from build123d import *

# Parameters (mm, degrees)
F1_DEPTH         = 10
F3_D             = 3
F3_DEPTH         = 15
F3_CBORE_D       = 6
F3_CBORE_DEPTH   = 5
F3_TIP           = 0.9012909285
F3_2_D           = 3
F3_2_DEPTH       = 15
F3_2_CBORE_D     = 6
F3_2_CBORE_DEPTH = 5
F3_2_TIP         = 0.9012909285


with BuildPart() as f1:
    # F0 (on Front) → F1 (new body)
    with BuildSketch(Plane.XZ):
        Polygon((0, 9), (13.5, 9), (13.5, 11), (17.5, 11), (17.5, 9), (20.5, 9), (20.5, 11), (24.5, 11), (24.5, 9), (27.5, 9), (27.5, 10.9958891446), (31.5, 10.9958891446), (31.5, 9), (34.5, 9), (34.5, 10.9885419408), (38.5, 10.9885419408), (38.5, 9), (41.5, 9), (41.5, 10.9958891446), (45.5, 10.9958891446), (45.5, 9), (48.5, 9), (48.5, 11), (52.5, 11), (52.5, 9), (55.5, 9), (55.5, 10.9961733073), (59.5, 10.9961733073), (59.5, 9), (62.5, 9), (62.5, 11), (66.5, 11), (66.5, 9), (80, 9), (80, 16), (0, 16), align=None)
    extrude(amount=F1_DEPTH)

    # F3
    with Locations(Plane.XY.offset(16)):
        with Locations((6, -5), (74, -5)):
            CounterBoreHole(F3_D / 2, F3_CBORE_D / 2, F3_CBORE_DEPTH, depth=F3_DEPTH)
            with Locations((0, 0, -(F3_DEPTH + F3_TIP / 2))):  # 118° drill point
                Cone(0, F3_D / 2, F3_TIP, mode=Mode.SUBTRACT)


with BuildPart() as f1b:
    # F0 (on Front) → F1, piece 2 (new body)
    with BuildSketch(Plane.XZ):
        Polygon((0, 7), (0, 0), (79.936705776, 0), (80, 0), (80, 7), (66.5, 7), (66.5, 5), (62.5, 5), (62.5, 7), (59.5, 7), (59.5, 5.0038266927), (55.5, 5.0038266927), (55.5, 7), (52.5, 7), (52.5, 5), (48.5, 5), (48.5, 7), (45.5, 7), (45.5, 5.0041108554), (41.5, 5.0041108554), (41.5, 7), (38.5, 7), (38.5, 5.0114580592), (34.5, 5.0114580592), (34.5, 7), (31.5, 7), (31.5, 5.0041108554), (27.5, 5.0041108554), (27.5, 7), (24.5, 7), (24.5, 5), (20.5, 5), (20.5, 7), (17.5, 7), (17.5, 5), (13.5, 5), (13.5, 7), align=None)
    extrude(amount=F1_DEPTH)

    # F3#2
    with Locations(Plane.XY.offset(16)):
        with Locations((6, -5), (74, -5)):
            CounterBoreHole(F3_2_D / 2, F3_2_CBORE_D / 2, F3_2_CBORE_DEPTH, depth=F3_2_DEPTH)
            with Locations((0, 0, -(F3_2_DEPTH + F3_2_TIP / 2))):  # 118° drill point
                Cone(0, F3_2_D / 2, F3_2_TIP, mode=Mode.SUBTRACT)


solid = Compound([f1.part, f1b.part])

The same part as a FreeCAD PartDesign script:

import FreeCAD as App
import Part
import Sketcher
from FreeCAD import Vector

doc = App.newDocument("Part")
body = doc.addObject("PartDesign::Body", "Body")

# Sketch on XZ plane
sketch1 = body.newObject("Sketcher::SketchObject", "Sketch")
sketch1.AttachmentSupport = (doc.getObject("XZ_Plane"), [""])
sketch1.MapMode = "FlatFace"
sketch1.addGeometry(Part.LineSegment(Vector(0, 9, 0), Vector(13.5, 9, 0)), False)
sketch1.addGeometry(Part.LineSegment(Vector(13.5, 9, 0), Vector(13.5, 11, 0)), False)
sketch1.addGeometry(Part.LineSegment(Vector(13.5, 11, 0), Vector(17.5, 11, 0)), False)
sketch1.addGeometry(Part.LineSegment(Vector(17.5, 11, 0), Vector(17.5, 9, 0)), False)
sketch1.addGeometry(Part.LineSegment(Vector(17.5, 9, 0), Vector(20.5, 9, 0)), False)
sketch1.addGeometry(Part.LineSegment(Vector(20.5, 9, 0), Vector(20.5, 11, 0)), False)
sketch1.addGeometry(Part.LineSegment(Vector(20.5, 11, 0), Vector(24.5, 11, 0)), False)
sketch1.addGeometry(Part.LineSegment(Vector(24.5, 11, 0), Vector(24.5, 9, 0)), False)
sketch1.addGeometry(Part.LineSegment(Vector(24.5, 9, 0), Vector(27.5, 9, 0)), False)
sketch1.addGeometry(Part.LineSegment(Vector(27.5, 9, 0), Vector(27.5, 11, 0)), False)
sketch1.addGeometry(Part.LineSegment(Vector(27.5, 11, 0), Vector(31.5, 11, 0)), False)
sketch1.addGeometry(Part.LineSegment(Vector(31.5, 11, 0), Vector(31.5, 9, 0)), False)
sketch1.addGeometry(Part.LineSegment(Vector(31.5, 9, 0), Vector(34.5, 9, 0)), False)
sketch1.addGeometry(Part.LineSegment(Vector(34.5, 9, 0), Vector(34.5, 11, 0)), False)
sketch1.addGeometry(Part.LineSegment(Vector(34.5, 11, 0), Vector(38.5, 11, 0)), False)
sketch1.addGeometry(Part.LineSegment(Vector(38.5, 11, 0), Vector(38.5, 9, 0)), False)
sketch1.addGeometry(Part.LineSegment(Vector(38.5, 9, 0), Vector(41.5, 9, 0)), False)
sketch1.addGeometry(Part.LineSegment(Vector(41.5, 9, 0), Vector(41.5, 11, 0)), False)
sketch1.addGeometry(Part.LineSegment(Vector(41.5, 11, 0), Vector(45.5, 11, 0)), False)
sketch1.addGeometry(Part.LineSegment(Vector(45.5, 11, 0), Vector(45.5, 9, 0)), False)
sketch1.addGeometry(Part.LineSegment(Vector(45.5, 9, 0), Vector(48.5, 9, 0)), False)
sketch1.addGeometry(Part.LineSegment(Vector(48.5, 9, 0), Vector(48.5, 11, 0)), False)
sketch1.addGeometry(Part.LineSegment(Vector(48.5, 11, 0), Vector(52.5, 11, 0)), False)
sketch1.addGeometry(Part.LineSegment(Vector(52.5, 11, 0), Vector(52.5, 9, 0)), False)
sketch1.addGeometry(Part.LineSegment(Vector(52.5, 9, 0), Vector(55.5, 9, 0)), False)
sketch1.addGeometry(Part.LineSegment(Vector(55.5, 9, 0), Vector(55.5, 11, 0)), False)
sketch1.addGeometry(Part.LineSegment(Vector(55.5, 11, 0), Vector(59.5, 11, 0)), False)
sketch1.addGeometry(Part.LineSegment(Vector(59.5, 11, 0), Vector(59.5, 9, 0)), False)
sketch1.addGeometry(Part.LineSegment(Vector(59.5, 9, 0), Vector(62.5, 9, 0)), False)
sketch1.addGeometry(Part.LineSegment(Vector(62.5, 9, 0), Vector(62.5, 11, 0)), False)
sketch1.addGeometry(Part.LineSegment(Vector(62.5, 11, 0), Vector(66.5, 11, 0)), False)
sketch1.addGeometry(Part.LineSegment(Vector(66.5, 11, 0), Vector(66.5, 9, 0)), False)
sketch1.addGeometry(Part.LineSegment(Vector(66.5, 9, 0), Vector(80, 9, 0)), False)
sketch1.addGeometry(Part.LineSegment(Vector(80, 9, 0), Vector(80, 16, 0)), False)
sketch1.addGeometry(Part.LineSegment(Vector(80, 16, 0), Vector(0, 16, 0)), False)
sketch1.addGeometry(Part.LineSegment(Vector(0, 16, 0), Vector(0, 9, 0)), False)
sketch1.addConstraint(Sketcher.Constraint("Coincident", 0, 2, 1, 1))
sketch1.addConstraint(Sketcher.Constraint("Coincident", 1, 2, 2, 1))
sketch1.addConstraint(Sketcher.Constraint("Coincident", 2, 2, 3, 1))
sketch1.addConstraint(Sketcher.Constraint("Coincident", 3, 2, 4, 1))
sketch1.addConstraint(Sketcher.Constraint("Coincident", 4, 2, 5, 1))
sketch1.addConstraint(Sketcher.Constraint("Coincident", 5, 2, 6, 1))
sketch1.addConstraint(Sketcher.Constraint("Coincident", 6, 2, 7, 1))
sketch1.addConstraint(Sketcher.Constraint("Coincident", 7, 2, 8, 1))
sketch1.addConstraint(Sketcher.Constraint("Coincident", 8, 2, 9, 1))
sketch1.addConstraint(Sketcher.Constraint("Coincident", 9, 2, 10, 1))
sketch1.addConstraint(Sketcher.Constraint("Coincident", 10, 2, 11, 1))
sketch1.addConstraint(Sketcher.Constraint("Coincident", 11, 2, 12, 1))
sketch1.addConstraint(Sketcher.Constraint("Coincident", 12, 2, 13, 1))
sketch1.addConstraint(Sketcher.Constraint("Coincident", 13, 2, 14, 1))
sketch1.addConstraint(Sketcher.Constraint("Coincident", 14, 2, 15, 1))
sketch1.addConstraint(Sketcher.Constraint("Coincident", 15, 2, 16, 1))
sketch1.addConstraint(Sketcher.Constraint("Coincident", 16, 2, 17, 1))
sketch1.addConstraint(Sketcher.Constraint("Coincident", 17, 2, 18, 1))
sketch1.addConstraint(Sketcher.Constraint("Coincident", 18, 2, 19, 1))
sketch1.addConstraint(Sketcher.Constraint("Coincident", 19, 2, 20, 1))
sketch1.addConstraint(Sketcher.Constraint("Coincident", 20, 2, 21, 1))
sketch1.addConstraint(Sketcher.Constraint("Coincident", 21, 2, 22, 1))
sketch1.addConstraint(Sketcher.Constraint("Coincident", 22, 2, 23, 1))
sketch1.addConstraint(Sketcher.Constraint("Coincident", 23, 2, 24, 1))
sketch1.addConstraint(Sketcher.Constraint("Coincident", 24, 2, 25, 1))
sketch1.addConstraint(Sketcher.Constraint("Coincident", 25, 2, 26, 1))
sketch1.addConstraint(Sketcher.Constraint("Coincident", 26, 2, 27, 1))
sketch1.addConstraint(Sketcher.Constraint("Coincident", 27, 2, 28, 1))
sketch1.addConstraint(Sketcher.Constraint("Coincident", 28, 2, 29, 1))
sketch1.addConstraint(Sketcher.Constraint("Coincident", 29, 2, 30, 1))
sketch1.addConstraint(Sketcher.Constraint("Coincident", 30, 2, 31, 1))
sketch1.addConstraint(Sketcher.Constraint("Coincident", 31, 2, 32, 1))
sketch1.addConstraint(Sketcher.Constraint("Coincident", 32, 2, 33, 1))
sketch1.addConstraint(Sketcher.Constraint("Coincident", 33, 2, 34, 1))
sketch1.addConstraint(Sketcher.Constraint("Coincident", 34, 2, 35, 1))
sketch1.addConstraint(Sketcher.Constraint("Coincident", 35, 2, 0, 1))
sketch1.addConstraint(Sketcher.Constraint("Horizontal", 0))
sketch1.addConstraint(Sketcher.Constraint("Vertical", 1))
sketch1.addConstraint(Sketcher.Constraint("Horizontal", 2))
sketch1.addConstraint(Sketcher.Constraint("Vertical", 3))
sketch1.addConstraint(Sketcher.Constraint("Horizontal", 4))
sketch1.addConstraint(Sketcher.Constraint("Vertical", 5))
sketch1.addConstraint(Sketcher.Constraint("Horizontal", 6))
sketch1.addConstraint(Sketcher.Constraint("Vertical", 7))
sketch1.addConstraint(Sketcher.Constraint("Horizontal", 8))
sketch1.addConstraint(Sketcher.Constraint("Vertical", 9))
sketch1.addConstraint(Sketcher.Constraint("Horizontal", 10))
sketch1.addConstraint(Sketcher.Constraint("Vertical", 11))
sketch1.addConstraint(Sketcher.Constraint("Horizontal", 12))
sketch1.addConstraint(Sketcher.Constraint("Vertical", 13))
sketch1.addConstraint(Sketcher.Constraint("Horizontal", 14))
sketch1.addConstraint(Sketcher.Constraint("Vertical", 15))
sketch1.addConstraint(Sketcher.Constraint("Horizontal", 16))
sketch1.addConstraint(Sketcher.Constraint("Vertical", 17))
sketch1.addConstraint(Sketcher.Constraint("Horizontal", 18))
sketch1.addConstraint(Sketcher.Constraint("Vertical", 19))
sketch1.addConstraint(Sketcher.Constraint("Horizontal", 20))
sketch1.addConstraint(Sketcher.Constraint("Vertical", 21))
sketch1.addConstraint(Sketcher.Constraint("Horizontal", 22))
sketch1.addConstraint(Sketcher.Constraint("Vertical", 23))
sketch1.addConstraint(Sketcher.Constraint("Horizontal", 24))
sketch1.addConstraint(Sketcher.Constraint("Vertical", 25))
sketch1.addConstraint(Sketcher.Constraint("Horizontal", 26))
sketch1.addConstraint(Sketcher.Constraint("Vertical", 27))
sketch1.addConstraint(Sketcher.Constraint("Horizontal", 28))
sketch1.addConstraint(Sketcher.Constraint("Vertical", 29))
sketch1.addConstraint(Sketcher.Constraint("Horizontal", 30))
sketch1.addConstraint(Sketcher.Constraint("Vertical", 31))
sketch1.addConstraint(Sketcher.Constraint("Horizontal", 32))
sketch1.addConstraint(Sketcher.Constraint("Vertical", 33))
sketch1.addConstraint(Sketcher.Constraint("Horizontal", 34))
sketch1.addConstraint(Sketcher.Constraint("Vertical", 35))
sketch1.addConstraint(Sketcher.Constraint("PointOnObject", 34, 2, -2))
sketch1.addConstraint(Sketcher.Constraint("Horizontal", 0, 2, 3, 2))
sketch1.addConstraint(Sketcher.Constraint("Horizontal", 2, 2, 5, 2))
sketch1.addConstraint(Sketcher.Constraint("Horizontal", 4, 2, 7, 2))
sketch1.addConstraint(Sketcher.Constraint("Horizontal", 8, 2, 11, 2))
sketch1.addConstraint(Sketcher.Constraint("Horizontal", 12, 2, 15, 2))
sketch1.addConstraint(Sketcher.Constraint("Horizontal", 10, 2, 17, 2))
sketch1.addConstraint(Sketcher.Constraint("Horizontal", 16, 2, 19, 2))
sketch1.addConstraint(Sketcher.Constraint("Horizontal", 6, 2, 21, 2))
sketch1.addConstraint(Sketcher.Constraint("Horizontal", 20, 2, 23, 2))
sketch1.addConstraint(Sketcher.Constraint("Horizontal", 24, 2, 27, 2))
sketch1.addConstraint(Sketcher.Constraint("Horizontal", 22, 2, 29, 2))
sketch1.addConstraint(Sketcher.Constraint("Horizontal", 28, 2, 31, 2))
sketch1.addConstraint(Sketcher.Constraint("Equal", 2, 6))
sketch1.addConstraint(Sketcher.Constraint("Equal", 4, 8))
sketch1.addConstraint(Sketcher.Constraint("Equal", 6, 10))
sketch1.addConstraint(Sketcher.Constraint("Equal", 8, 12))
sketch1.addConstraint(Sketcher.Constraint("Equal", 10, 14))
sketch1.addConstraint(Sketcher.Constraint("Equal", 12, 16))
sketch1.addConstraint(Sketcher.Constraint("Equal", 14, 18))
sketch1.addConstraint(Sketcher.Constraint("Equal", 16, 20))
sketch1.addConstraint(Sketcher.Constraint("Equal", 18, 22))
sketch1.addConstraint(Sketcher.Constraint("Equal", 20, 24))
sketch1.addConstraint(Sketcher.Constraint("Equal", 22, 26))
sketch1.addConstraint(Sketcher.Constraint("Equal", 24, 28))
sketch1.addConstraint(Sketcher.Constraint("Equal", 26, 30))
sketch1.addConstraint(Sketcher.Constraint("Equal", 0, 32))
sketch1.addConstraint(Sketcher.Constraint("DistanceX", 2, 1, 2, 2, 4.0))
sketch1.addConstraint(Sketcher.Constraint("DistanceX", 4, 1, 4, 2, 3.0))
sketch1.addConstraint(Sketcher.Constraint("DistanceX", 34, 2, 34, 1, 80.0))
sketch1.addConstraint(Sketcher.Constraint("DistanceY", 1, 1, 1, 2, 2.0))
sketch1.addConstraint(Sketcher.Constraint("DistanceY", 33, 1, 33, 2, 7.0))
sketch1.addConstraint(Sketcher.Constraint("DistanceY", -1, 1, 0, 2, 9.0))
sketch1.addConstraint(Sketcher.Constraint("DistanceY", 9, 1, 9, 2, 1.995889))
sketch1.addConstraint(Sketcher.Constraint("DistanceY", 13, 1, 13, 2, 1.988542))
sketch1.addConstraint(Sketcher.Constraint("DistanceY", 25, 1, 25, 2, 1.996173))
pad1 = body.newObject("PartDesign::Pad", "Pad")
pad1.Profile = sketch1
pad1.Length = 10

# Sketch on XY plane
sketch2 = body.newObject("Sketcher::SketchObject", "Sketch001")
sketch2.AttachmentSupport = (doc.getObject("XY_Plane"), [""])
sketch2.MapMode = "FlatFace"
sketch2.AttachmentOffset = App.Placement(Vector(0, 0, 16), App.Rotation())
sketch2.addGeometry(Part.Circle(Vector(6, -5, 0), Vector(0, 0, 1), 1.5), False)
sketch2.addGeometry(Part.Circle(Vector(74, -5, 0), Vector(0, 0, 1), 1.5), False)
sketch2.addConstraint(Sketcher.Constraint("Equal", 0, 1))
sketch2.addConstraint(Sketcher.Constraint("Horizontal", 0, 3, 1, 3))
sketch2.addConstraint(Sketcher.Constraint("Diameter", 0, 3.0))
sketch2.addConstraint(Sketcher.Constraint("DistanceX", -1, 1, 0, 3, 6.0))
sketch2.addConstraint(Sketcher.Constraint("DistanceY", 0, 3, -1, 1, 5.0))
sketch2.addConstraint(Sketcher.Constraint("DistanceX", -1, 1, 1, 3, 74.0))
doc.recompute()
hole = body.newObject("PartDesign::Hole", "Hole")
hole.Profile = sketch2
hole.ThreadType = "None"
hole.Diameter = 3
hole.DepthType = "Dimension"
hole.Depth = 15
hole.DrillPoint = "Angled"
hole.DrillPointAngle = 118
hole.HoleCutType = "Counterbore"
hole.HoleCutDiameter = 6
hole.HoleCutDepth = 5
body2 = doc.addObject("PartDesign::Body", "Body001")

# Sketch on XZ plane
sketch3 = body2.newObject("Sketcher::SketchObject", "Sketch002")
sketch3.AttachmentSupport = (doc.getObject("XZ_Plane001"), [""])
sketch3.MapMode = "FlatFace"
sketch3.addGeometry(Part.LineSegment(Vector(0, 7, 0), Vector(0, 0, 0)), False)
sketch3.addGeometry(Part.LineSegment(Vector(0, 0, 0), Vector(80, 0, 0)), False)
sketch3.addGeometry(Part.LineSegment(Vector(80, 0, 0), Vector(80, 7, 0)), False)
sketch3.addGeometry(Part.LineSegment(Vector(80, 7, 0), Vector(66.5, 7, 0)), False)
sketch3.addGeometry(Part.LineSegment(Vector(66.5, 7, 0), Vector(66.5, 5, 0)), False)
sketch3.addGeometry(Part.LineSegment(Vector(66.5, 5, 0), Vector(62.5, 5, 0)), False)
sketch3.addGeometry(Part.LineSegment(Vector(62.5, 5, 0), Vector(62.5, 7, 0)), False)
sketch3.addGeometry(Part.LineSegment(Vector(62.5, 7, 0), Vector(59.5, 7, 0)), False)
sketch3.addGeometry(Part.LineSegment(Vector(59.5, 7, 0), Vector(59.5, 5, 0)), False)
sketch3.addGeometry(Part.LineSegment(Vector(59.5, 5, 0), Vector(55.5, 5, 0)), False)
sketch3.addGeometry(Part.LineSegment(Vector(55.5, 5, 0), Vector(55.5, 7, 0)), False)
sketch3.addGeometry(Part.LineSegment(Vector(55.5, 7, 0), Vector(52.5, 7, 0)), False)
sketch3.addGeometry(Part.LineSegment(Vector(52.5, 7, 0), Vector(52.5, 5, 0)), False)
sketch3.addGeometry(Part.LineSegment(Vector(52.5, 5, 0), Vector(48.5, 5, 0)), False)
sketch3.addGeometry(Part.LineSegment(Vector(48.5, 5, 0), Vector(48.5, 7, 0)), False)
sketch3.addGeometry(Part.LineSegment(Vector(48.5, 7, 0), Vector(45.5, 7, 0)), False)
sketch3.addGeometry(Part.LineSegment(Vector(45.5, 7, 0), Vector(45.5, 5, 0)), False)
sketch3.addGeometry(Part.LineSegment(Vector(45.5, 5, 0), Vector(41.5, 5, 0)), False)
sketch3.addGeometry(Part.LineSegment(Vector(41.5, 5, 0), Vector(41.5, 7, 0)), False)
sketch3.addGeometry(Part.LineSegment(Vector(41.5, 7, 0), Vector(38.5, 7, 0)), False)
sketch3.addGeometry(Part.LineSegment(Vector(38.5, 7, 0), Vector(38.5, 5, 0)), False)
sketch3.addGeometry(Part.LineSegment(Vector(38.5, 5, 0), Vector(34.5, 5, 0)), False)
sketch3.addGeometry(Part.LineSegment(Vector(34.5, 5, 0), Vector(34.5, 7, 0)), False)
sketch3.addGeometry(Part.LineSegment(Vector(34.5, 7, 0), Vector(31.5, 7, 0)), False)
sketch3.addGeometry(Part.LineSegment(Vector(31.5, 7, 0), Vector(31.5, 5, 0)), False)
sketch3.addGeometry(Part.LineSegment(Vector(31.5, 5, 0), Vector(27.5, 5, 0)), False)
sketch3.addGeometry(Part.LineSegment(Vector(27.5, 5, 0), Vector(27.5, 7, 0)), False)
sketch3.addGeometry(Part.LineSegment(Vector(27.5, 7, 0), Vector(24.5, 7, 0)), False)
sketch3.addGeometry(Part.LineSegment(Vector(24.5, 7, 0), Vector(24.5, 5, 0)), False)
sketch3.addGeometry(Part.LineSegment(Vector(24.5, 5, 0), Vector(20.5, 5, 0)), False)
sketch3.addGeometry(Part.LineSegment(Vector(20.5, 5, 0), Vector(20.5, 7, 0)), False)
sketch3.addGeometry(Part.LineSegment(Vector(20.5, 7, 0), Vector(17.5, 7, 0)), False)
sketch3.addGeometry(Part.LineSegment(Vector(17.5, 7, 0), Vector(17.5, 5, 0)), False)
sketch3.addGeometry(Part.LineSegment(Vector(17.5, 5, 0), Vector(13.5, 5, 0)), False)
sketch3.addGeometry(Part.LineSegment(Vector(13.5, 5, 0), Vector(13.5, 7, 0)), False)
sketch3.addGeometry(Part.LineSegment(Vector(13.5, 7, 0), Vector(0, 7, 0)), False)
sketch3.addConstraint(Sketcher.Constraint("Coincident", 0, 2, 1, 1))
sketch3.addConstraint(Sketcher.Constraint("Coincident", 1, 2, 2, 1))
sketch3.addConstraint(Sketcher.Constraint("Coincident", 2, 2, 3, 1))
sketch3.addConstraint(Sketcher.Constraint("Coincident", 3, 2, 4, 1))
sketch3.addConstraint(Sketcher.Constraint("Coincident", 4, 2, 5, 1))
sketch3.addConstraint(Sketcher.Constraint("Coincident", 5, 2, 6, 1))
sketch3.addConstraint(Sketcher.Constraint("Coincident", 6, 2, 7, 1))
sketch3.addConstraint(Sketcher.Constraint("Coincident", 7, 2, 8, 1))
sketch3.addConstraint(Sketcher.Constraint("Coincident", 8, 2, 9, 1))
sketch3.addConstraint(Sketcher.Constraint("Coincident", 9, 2, 10, 1))
sketch3.addConstraint(Sketcher.Constraint("Coincident", 10, 2, 11, 1))
sketch3.addConstraint(Sketcher.Constraint("Coincident", 11, 2, 12, 1))
sketch3.addConstraint(Sketcher.Constraint("Coincident", 12, 2, 13, 1))
sketch3.addConstraint(Sketcher.Constraint("Coincident", 13, 2, 14, 1))
sketch3.addConstraint(Sketcher.Constraint("Coincident", 14, 2, 15, 1))
sketch3.addConstraint(Sketcher.Constraint("Coincident", 15, 2, 16, 1))
sketch3.addConstraint(Sketcher.Constraint("Coincident", 16, 2, 17, 1))
sketch3.addConstraint(Sketcher.Constraint("Coincident", 17, 2, 18, 1))
sketch3.addConstraint(Sketcher.Constraint("Coincident", 18, 2, 19, 1))
sketch3.addConstraint(Sketcher.Constraint("Coincident", 19, 2, 20, 1))
sketch3.addConstraint(Sketcher.Constraint("Coincident", 20, 2, 21, 1))
sketch3.addConstraint(Sketcher.Constraint("Coincident", 21, 2, 22, 1))
sketch3.addConstraint(Sketcher.Constraint("Coincident", 22, 2, 23, 1))
sketch3.addConstraint(Sketcher.Constraint("Coincident", 23, 2, 24, 1))
sketch3.addConstraint(Sketcher.Constraint("Coincident", 24, 2, 25, 1))
sketch3.addConstraint(Sketcher.Constraint("Coincident", 25, 2, 26, 1))
sketch3.addConstraint(Sketcher.Constraint("Coincident", 26, 2, 27, 1))
sketch3.addConstraint(Sketcher.Constraint("Coincident", 27, 2, 28, 1))
sketch3.addConstraint(Sketcher.Constraint("Coincident", 28, 2, 29, 1))
sketch3.addConstraint(Sketcher.Constraint("Coincident", 29, 2, 30, 1))
sketch3.addConstraint(Sketcher.Constraint("Coincident", 30, 2, 31, 1))
sketch3.addConstraint(Sketcher.Constraint("Coincident", 31, 2, 32, 1))
sketch3.addConstraint(Sketcher.Constraint("Coincident", 32, 2, 33, 1))
sketch3.addConstraint(Sketcher.Constraint("Coincident", 33, 2, 34, 1))
sketch3.addConstraint(Sketcher.Constraint("Coincident", 34, 2, 35, 1))
sketch3.addConstraint(Sketcher.Constraint("Coincident", 35, 2, 0, 1))
sketch3.addConstraint(Sketcher.Constraint("Vertical", 0))
sketch3.addConstraint(Sketcher.Constraint("Horizontal", 1))
sketch3.addConstraint(Sketcher.Constraint("Vertical", 2))
sketch3.addConstraint(Sketcher.Constraint("Horizontal", 3))
sketch3.addConstraint(Sketcher.Constraint("Vertical", 4))
sketch3.addConstraint(Sketcher.Constraint("Horizontal", 5))
sketch3.addConstraint(Sketcher.Constraint("Vertical", 6))
sketch3.addConstraint(Sketcher.Constraint("Horizontal", 7))
sketch3.addConstraint(Sketcher.Constraint("Vertical", 8))
sketch3.addConstraint(Sketcher.Constraint("Horizontal", 9))
sketch3.addConstraint(Sketcher.Constraint("Vertical", 10))
sketch3.addConstraint(Sketcher.Constraint("Horizontal", 11))
sketch3.addConstraint(Sketcher.Constraint("Vertical", 12))
sketch3.addConstraint(Sketcher.Constraint("Horizontal", 13))
sketch3.addConstraint(Sketcher.Constraint("Vertical", 14))
sketch3.addConstraint(Sketcher.Constraint("Horizontal", 15))
sketch3.addConstraint(Sketcher.Constraint("Vertical", 16))
sketch3.addConstraint(Sketcher.Constraint("Horizontal", 17))
sketch3.addConstraint(Sketcher.Constraint("Vertical", 18))
sketch3.addConstraint(Sketcher.Constraint("Horizontal", 19))
sketch3.addConstraint(Sketcher.Constraint("Vertical", 20))
sketch3.addConstraint(Sketcher.Constraint("Horizontal", 21))
sketch3.addConstraint(Sketcher.Constraint("Vertical", 22))
sketch3.addConstraint(Sketcher.Constraint("Horizontal", 23))
sketch3.addConstraint(Sketcher.Constraint("Vertical", 24))
sketch3.addConstraint(Sketcher.Constraint("Horizontal", 25))
sketch3.addConstraint(Sketcher.Constraint("Vertical", 26))
sketch3.addConstraint(Sketcher.Constraint("Horizontal", 27))
sketch3.addConstraint(Sketcher.Constraint("Vertical", 28))
sketch3.addConstraint(Sketcher.Constraint("Horizontal", 29))
sketch3.addConstraint(Sketcher.Constraint("Vertical", 30))
sketch3.addConstraint(Sketcher.Constraint("Horizontal", 31))
sketch3.addConstraint(Sketcher.Constraint("Vertical", 32))
sketch3.addConstraint(Sketcher.Constraint("Horizontal", 33))
sketch3.addConstraint(Sketcher.Constraint("Vertical", 34))
sketch3.addConstraint(Sketcher.Constraint("Horizontal", 35))
sketch3.addConstraint(Sketcher.Constraint("Coincident", 0, 2, -1, 1))
sketch3.addConstraint(Sketcher.Constraint("Horizontal", 3, 2, 6, 2))
sketch3.addConstraint(Sketcher.Constraint("Horizontal", 7, 2, 10, 2))
sketch3.addConstraint(Sketcher.Constraint("Horizontal", 5, 2, 12, 2))
sketch3.addConstraint(Sketcher.Constraint("Horizontal", 11, 2, 14, 2))
sketch3.addConstraint(Sketcher.Constraint("Horizontal", 15, 2, 18, 2))
sketch3.addConstraint(Sketcher.Constraint("Horizontal", 19, 2, 22, 2))
sketch3.addConstraint(Sketcher.Constraint("Horizontal", 17, 2, 24, 2))
sketch3.addConstraint(Sketcher.Constraint("Horizontal", 23, 2, 26, 2))
sketch3.addConstraint(Sketcher.Constraint("Horizontal", 13, 2, 28, 2))
sketch3.addConstraint(Sketcher.Constraint("Horizontal", 27, 2, 30, 2))
sketch3.addConstraint(Sketcher.Constraint("Horizontal", 29, 2, 32, 2))
sketch3.addConstraint(Sketcher.Constraint("Horizontal", 31, 2, 34, 2))
sketch3.addConstraint(Sketcher.Constraint("Equal", 5, 9))
sketch3.addConstraint(Sketcher.Constraint("Equal", 7, 11))
sketch3.addConstraint(Sketcher.Constraint("Equal", 9, 13))
sketch3.addConstraint(Sketcher.Constraint("Equal", 11, 15))
sketch3.addConstraint(Sketcher.Constraint("Equal", 13, 17))
sketch3.addConstraint(Sketcher.Constraint("Equal", 15, 19))
sketch3.addConstraint(Sketcher.Constraint("Equal", 17, 21))
sketch3.addConstraint(Sketcher.Constraint("Equal", 19, 23))
sketch3.addConstraint(Sketcher.Constraint("Equal", 21, 25))
sketch3.addConstraint(Sketcher.Constraint("Equal", 23, 27))
sketch3.addConstraint(Sketcher.Constraint("Equal", 25, 29))
sketch3.addConstraint(Sketcher.Constraint("Equal", 27, 31))
sketch3.addConstraint(Sketcher.Constraint("Equal", 29, 33))
sketch3.addConstraint(Sketcher.Constraint("Equal", 3, 35))
sketch3.addConstraint(Sketcher.Constraint("DistanceX", 1, 1, 1, 2, 80.0))
sketch3.addConstraint(Sketcher.Constraint("DistanceX", 5, 2, 5, 1, 4.0))
sketch3.addConstraint(Sketcher.Constraint("DistanceX", 7, 2, 7, 1, 3.0))
sketch3.addConstraint(Sketcher.Constraint("DistanceY", 0, 2, 0, 1, 7.0))
sketch3.addConstraint(Sketcher.Constraint("DistanceY", 4, 2, 4, 1, 2.0))
sketch3.addConstraint(Sketcher.Constraint("DistanceY", 16, 2, 16, 1, 1.995889))
sketch3.addConstraint(Sketcher.Constraint("DistanceY", 20, 2, 20, 1, 1.988542))
sketch3.addConstraint(Sketcher.Constraint("DistanceY", 8, 2, 8, 1, 1.996173))
pad2 = body2.newObject("PartDesign::Pad", "Pad001")
pad2.Profile = sketch3
pad2.Length = 10

# Sketch on XY plane
sketch4 = body2.newObject("Sketcher::SketchObject", "Sketch003")
sketch4.AttachmentSupport = (doc.getObject("XY_Plane001"), [""])
sketch4.MapMode = "FlatFace"
sketch4.AttachmentOffset = App.Placement(Vector(0, 0, 16), App.Rotation())
sketch4.addGeometry(Part.Circle(Vector(6, -5, 0), Vector(0, 0, 1), 1.5), False)
sketch4.addGeometry(Part.Circle(Vector(74, -5, 0), Vector(0, 0, 1), 1.5), False)
sketch4.addConstraint(Sketcher.Constraint("Equal", 0, 1))
sketch4.addConstraint(Sketcher.Constraint("Horizontal", 0, 3, 1, 3))
sketch4.addConstraint(Sketcher.Constraint("Diameter", 0, 3.0))
sketch4.addConstraint(Sketcher.Constraint("DistanceX", -1, 1, 0, 3, 6.0))
sketch4.addConstraint(Sketcher.Constraint("DistanceY", 0, 3, -1, 1, 5.0))
sketch4.addConstraint(Sketcher.Constraint("DistanceX", -1, 1, 1, 3, 74.0))
doc.recompute()
hole2 = body2.newObject("PartDesign::Hole", "Hole001")
hole2.Profile = sketch4
hole2.ThreadType = "None"
hole2.Diameter = 3
hole2.DepthType = "Dimension"
hole2.Depth = 15
hole2.DrillPoint = "Angled"
hole2.DrillPointAngle = 118
hole2.HoleCutType = "Counterbore"
hole2.HoleCutDiameter = 6
hole2.HoleCutDepth = 5

doc.recompute()
